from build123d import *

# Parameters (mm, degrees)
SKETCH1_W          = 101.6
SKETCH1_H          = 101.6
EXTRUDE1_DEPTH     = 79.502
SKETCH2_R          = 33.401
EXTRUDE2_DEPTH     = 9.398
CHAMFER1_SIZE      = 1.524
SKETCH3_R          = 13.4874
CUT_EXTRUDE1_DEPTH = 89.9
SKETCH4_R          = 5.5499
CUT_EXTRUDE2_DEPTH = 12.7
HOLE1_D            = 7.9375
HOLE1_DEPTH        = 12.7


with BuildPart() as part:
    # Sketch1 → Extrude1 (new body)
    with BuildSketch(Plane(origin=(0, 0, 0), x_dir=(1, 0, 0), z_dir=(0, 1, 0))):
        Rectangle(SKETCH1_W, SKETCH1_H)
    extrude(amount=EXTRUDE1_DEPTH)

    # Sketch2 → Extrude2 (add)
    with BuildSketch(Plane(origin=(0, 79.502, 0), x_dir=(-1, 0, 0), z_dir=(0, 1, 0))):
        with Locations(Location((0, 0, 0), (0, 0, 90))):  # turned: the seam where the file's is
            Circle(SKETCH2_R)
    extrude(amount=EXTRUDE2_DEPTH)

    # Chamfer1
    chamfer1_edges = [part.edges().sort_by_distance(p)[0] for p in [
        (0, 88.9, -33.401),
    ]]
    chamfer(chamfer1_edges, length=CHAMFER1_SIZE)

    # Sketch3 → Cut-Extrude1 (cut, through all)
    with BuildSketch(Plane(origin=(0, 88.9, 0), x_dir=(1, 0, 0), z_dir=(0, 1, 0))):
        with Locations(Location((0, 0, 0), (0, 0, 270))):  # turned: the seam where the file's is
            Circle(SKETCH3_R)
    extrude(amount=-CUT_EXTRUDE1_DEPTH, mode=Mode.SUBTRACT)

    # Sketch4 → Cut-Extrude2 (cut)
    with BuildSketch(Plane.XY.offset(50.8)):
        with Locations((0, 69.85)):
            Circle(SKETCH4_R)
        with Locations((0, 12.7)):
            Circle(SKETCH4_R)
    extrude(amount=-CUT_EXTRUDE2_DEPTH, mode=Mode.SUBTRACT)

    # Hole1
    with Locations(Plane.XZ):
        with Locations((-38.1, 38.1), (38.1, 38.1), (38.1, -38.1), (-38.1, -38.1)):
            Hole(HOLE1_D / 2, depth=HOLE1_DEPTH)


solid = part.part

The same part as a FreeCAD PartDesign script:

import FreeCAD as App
import Part
import Sketcher
Q = App.Units.Quantity


def edges_at(feature, points):
    """Names of the edges that pass closest to the given points."""
    edges = feature.Shape.Edges
    near = lambda p: min(range(len(edges)), key=lambda i: edges[i].distToShape(Part.Vertex(*p))[0])
    return sorted({f"Edge{near(p) + 1}" for p in points})

doc = App.newDocument("Part")
body = doc.addObject("PartDesign::Body", "Body")

# Sketch on XZ plane
sketch1 = body.newObject("Sketcher::SketchObject", "Sketch")
sketch1.AttachmentSupport = (doc.getObject("XZ_Plane"), [""])
sketch1.MapMode = "FlatFace"
sketch1.addGeometry(Part.LineSegment(App.Vector(-51, -51, 0), App.Vector(-51, 51, 0)), False)
sketch1.addGeometry(Part.LineSegment(App.Vector(-51, 51, 0), App.Vector(51, 51, 0)), False)
sketch1.addGeometry(Part.LineSegment(App.Vector(51, 51, 0), App.Vector(51, -51, 0)), False)
sketch1.addGeometry(Part.LineSegment(App.Vector(51, -51, 0), App.Vector(-51, -51, 0)), False)
sketch1.addConstraint(Sketcher.Constraint("Coincident", 0, 2, 1, 1))
sketch1.addConstraint(Sketcher.Constraint("Coincident", 1, 2, 2, 1))
sketch1.addConstraint(Sketcher.Constraint("Coincident", 2, 2, 3, 1))
sketch1.addConstraint(Sketcher.Constraint("Coincident", 3, 2, 0, 1))
sketch1.addConstraint(Sketcher.Constraint("Vertical", 0))
sketch1.addConstraint(Sketcher.Constraint("Horizontal", 1))
sketch1.addConstraint(Sketcher.Constraint("Vertical", 2))
sketch1.addConstraint(Sketcher.Constraint("Horizontal", 3))
sketch1.addConstraint(Sketcher.Constraint("Symmetric", 0, 2, 2, 2, -1, 1))
sketch1.addConstraint(Sketcher.Constraint("Equal", 3, 0))
sketch1.addConstraint(Sketcher.Constraint("DistanceX", 1, 1, 1, 2, Q("4 in")))
pad1 = body.newObject("PartDesign::Pad", "Pad")
pad1.Profile = sketch1
pad1.Length = Q("3.13 in")
pad1.Reversed = True

# Sketch on XZ plane
sketch2 = body.newObject("Sketcher::SketchObject", "Sketch001")
sketch2.AttachmentSupport = (doc.getObject("XZ_Plane"), [""])
sketch2.MapMode = "FlatFace"
sketch2.AttachmentOffset = App.Placement(App.Vector(0, 0, -3.13 * 25.4), App.Rotation())
sketch2.addGeometry(Part.Circle(App.Vector(0, 0, 0), App.Vector(0, 0, 1), 33), False)
sketch2.addConstraint(Sketcher.Constraint("Coincident", 0, 3, -1, 1))
sketch2.addConstraint(Sketcher.Constraint("Diameter", 0, Q("2.63 in")))
pad2 = body.newObject("PartDesign::Pad", "Pad001")
pad2.Profile = sketch2
pad2.Length = Q("0.37 in")
pad2.Reversed = True
doc.recompute()

chamfer = body.newObject("PartDesign::Chamfer", "Chamfer")
chamfer.Base = (pad2, edges_at(pad2, [(0, 88.9, -33.401)]))
chamfer.Size = Q("0.06 in")

# Sketch on XZ plane
sketch3 = body.newObject("Sketcher::SketchObject", "Sketch002")
sketch3.AttachmentSupport = (doc.getObject("XZ_Plane"), [""])
sketch3.MapMode = "FlatFace"
sketch3.AttachmentOffset = App.Placement(App.Vector(0, 0, -3.5 * 25.4), App.Rotation())
sketch3.addGeometry(Part.Circle(App.Vector(0, 0, 0), App.Vector(0, 0, 1), 13), False)
sketch3.addConstraint(Sketcher.Constraint("Coincident", 0, 3, -1, 1))
sketch3.addConstraint(Sketcher.Constraint("Diameter", 0, Q("1.062 in")))
pocket1 = body.newObject("PartDesign::Pocket", "Pocket")
pocket1.Profile = sketch3
pocket1.Type = "ThroughAll"
pocket1.Reversed = True

# Sketch on XY plane
sketch4 = body.newObject("Sketcher::SketchObject", "Sketch003")
sketch4.AttachmentSupport = (doc.getObject("XY_Plane"), [""])
sketch4.MapMode = "FlatFace"
sketch4.AttachmentOffset = App.Placement(App.Vector(0, 0, 2 * 25.4), App.Rotation())
sketch4.addGeometry(Part.Circle(App.Vector(0, 70, 0), App.Vector(0, 0, 1), 6), False)
sketch4.addGeometry(Part.Circle(App.Vector(0, 13, 0), App.Vector(0, 0, 1), 6), False)
sketch4.addConstraint(Sketcher.Constraint("Equal", 0, 1))
sketch4.addConstraint(Sketcher.Constraint("PointOnObject", 0, 3, -2))
sketch4.addConstraint(Sketcher.Constraint("PointOnObject", 1, 3, -2))
sketch4.addConstraint(Sketcher.Constraint("Diameter", 0, Q("0.437 in")))
sketch4.addConstraint(Sketcher.Constraint("DistanceY", -1, 1, 1, 3, Q("0.5 in")))
sketch4.addConstraint(Sketcher.Constraint("DistanceY", -1, 1, 0, 3, Q("2.75 in")))
pocket2 = body.newObject("PartDesign::Pocket", "Pocket001")
pocket2.Profile = sketch4
pocket2.Length = Q("0.5 in")

# Sketch on XZ plane
sketch5 = body.newObject("Sketcher::SketchObject", "Sketch004")
sketch5.AttachmentSupport = (doc.getObject("XZ_Plane"), [""])
sketch5.MapMode = "FlatFace"
sketch5.addGeometry(Part.Circle(App.Vector(-38.1, 38.1, 0), App.Vector(0, 0, 1), 4), False)
sketch5.addGeometry(Part.Circle(App.Vector(38.1, 38.1, 0), App.Vector(0, 0, 1), 4), False)
sketch5.addGeometry(Part.Circle(App.Vector(38.1, -38.1, 0), App.Vector(0, 0, 1), 4), False)
sketch5.addGeometry(Part.Circle(App.Vector(-38.1, -38.1, 0), App.Vector(0, 0, 1), 4), False)
sketch5.addConstraint(Sketcher.Constraint("Equal", 0, 1))
sketch5.addConstraint(Sketcher.Constraint("Equal", 1, 2))
sketch5.addConstraint(Sketcher.Constraint("Equal", 2, 3))
sketch5.addConstraint(Sketcher.Constraint("Symmetric", 0, 3, 2, 3, -1, 1))
sketch5.addConstraint(Sketcher.Constraint("Symmetric", 1, 3, 3, 3, -1, 1))
sketch5.addConstraint(Sketcher.Constraint("Symmetric", 0, 3, 1, 3, -2))
sketch5.addConstraint(Sketcher.Constraint("Diameter", 0, Q("0.3125 in")))
sketch5.addConstraint(Sketcher.Constraint("DistanceX", 0, 3, 1, 3, Q("3 in")))
sketch5.addConstraint(Sketcher.Constraint("DistanceY", 2, 3, 1, 3, Q("3 in")))
doc.recompute()
hole = body.newObject("PartDesign::Hole", "Hole")
hole.Profile = sketch5
hole.ThreadType = "None"
hole.Diameter = Q("0.3125 in")
hole.DepthType = "Dimension"
hole.Depth = Q("0.5 in")
hole.DrillPoint = "Flat"

doc.recompute()
